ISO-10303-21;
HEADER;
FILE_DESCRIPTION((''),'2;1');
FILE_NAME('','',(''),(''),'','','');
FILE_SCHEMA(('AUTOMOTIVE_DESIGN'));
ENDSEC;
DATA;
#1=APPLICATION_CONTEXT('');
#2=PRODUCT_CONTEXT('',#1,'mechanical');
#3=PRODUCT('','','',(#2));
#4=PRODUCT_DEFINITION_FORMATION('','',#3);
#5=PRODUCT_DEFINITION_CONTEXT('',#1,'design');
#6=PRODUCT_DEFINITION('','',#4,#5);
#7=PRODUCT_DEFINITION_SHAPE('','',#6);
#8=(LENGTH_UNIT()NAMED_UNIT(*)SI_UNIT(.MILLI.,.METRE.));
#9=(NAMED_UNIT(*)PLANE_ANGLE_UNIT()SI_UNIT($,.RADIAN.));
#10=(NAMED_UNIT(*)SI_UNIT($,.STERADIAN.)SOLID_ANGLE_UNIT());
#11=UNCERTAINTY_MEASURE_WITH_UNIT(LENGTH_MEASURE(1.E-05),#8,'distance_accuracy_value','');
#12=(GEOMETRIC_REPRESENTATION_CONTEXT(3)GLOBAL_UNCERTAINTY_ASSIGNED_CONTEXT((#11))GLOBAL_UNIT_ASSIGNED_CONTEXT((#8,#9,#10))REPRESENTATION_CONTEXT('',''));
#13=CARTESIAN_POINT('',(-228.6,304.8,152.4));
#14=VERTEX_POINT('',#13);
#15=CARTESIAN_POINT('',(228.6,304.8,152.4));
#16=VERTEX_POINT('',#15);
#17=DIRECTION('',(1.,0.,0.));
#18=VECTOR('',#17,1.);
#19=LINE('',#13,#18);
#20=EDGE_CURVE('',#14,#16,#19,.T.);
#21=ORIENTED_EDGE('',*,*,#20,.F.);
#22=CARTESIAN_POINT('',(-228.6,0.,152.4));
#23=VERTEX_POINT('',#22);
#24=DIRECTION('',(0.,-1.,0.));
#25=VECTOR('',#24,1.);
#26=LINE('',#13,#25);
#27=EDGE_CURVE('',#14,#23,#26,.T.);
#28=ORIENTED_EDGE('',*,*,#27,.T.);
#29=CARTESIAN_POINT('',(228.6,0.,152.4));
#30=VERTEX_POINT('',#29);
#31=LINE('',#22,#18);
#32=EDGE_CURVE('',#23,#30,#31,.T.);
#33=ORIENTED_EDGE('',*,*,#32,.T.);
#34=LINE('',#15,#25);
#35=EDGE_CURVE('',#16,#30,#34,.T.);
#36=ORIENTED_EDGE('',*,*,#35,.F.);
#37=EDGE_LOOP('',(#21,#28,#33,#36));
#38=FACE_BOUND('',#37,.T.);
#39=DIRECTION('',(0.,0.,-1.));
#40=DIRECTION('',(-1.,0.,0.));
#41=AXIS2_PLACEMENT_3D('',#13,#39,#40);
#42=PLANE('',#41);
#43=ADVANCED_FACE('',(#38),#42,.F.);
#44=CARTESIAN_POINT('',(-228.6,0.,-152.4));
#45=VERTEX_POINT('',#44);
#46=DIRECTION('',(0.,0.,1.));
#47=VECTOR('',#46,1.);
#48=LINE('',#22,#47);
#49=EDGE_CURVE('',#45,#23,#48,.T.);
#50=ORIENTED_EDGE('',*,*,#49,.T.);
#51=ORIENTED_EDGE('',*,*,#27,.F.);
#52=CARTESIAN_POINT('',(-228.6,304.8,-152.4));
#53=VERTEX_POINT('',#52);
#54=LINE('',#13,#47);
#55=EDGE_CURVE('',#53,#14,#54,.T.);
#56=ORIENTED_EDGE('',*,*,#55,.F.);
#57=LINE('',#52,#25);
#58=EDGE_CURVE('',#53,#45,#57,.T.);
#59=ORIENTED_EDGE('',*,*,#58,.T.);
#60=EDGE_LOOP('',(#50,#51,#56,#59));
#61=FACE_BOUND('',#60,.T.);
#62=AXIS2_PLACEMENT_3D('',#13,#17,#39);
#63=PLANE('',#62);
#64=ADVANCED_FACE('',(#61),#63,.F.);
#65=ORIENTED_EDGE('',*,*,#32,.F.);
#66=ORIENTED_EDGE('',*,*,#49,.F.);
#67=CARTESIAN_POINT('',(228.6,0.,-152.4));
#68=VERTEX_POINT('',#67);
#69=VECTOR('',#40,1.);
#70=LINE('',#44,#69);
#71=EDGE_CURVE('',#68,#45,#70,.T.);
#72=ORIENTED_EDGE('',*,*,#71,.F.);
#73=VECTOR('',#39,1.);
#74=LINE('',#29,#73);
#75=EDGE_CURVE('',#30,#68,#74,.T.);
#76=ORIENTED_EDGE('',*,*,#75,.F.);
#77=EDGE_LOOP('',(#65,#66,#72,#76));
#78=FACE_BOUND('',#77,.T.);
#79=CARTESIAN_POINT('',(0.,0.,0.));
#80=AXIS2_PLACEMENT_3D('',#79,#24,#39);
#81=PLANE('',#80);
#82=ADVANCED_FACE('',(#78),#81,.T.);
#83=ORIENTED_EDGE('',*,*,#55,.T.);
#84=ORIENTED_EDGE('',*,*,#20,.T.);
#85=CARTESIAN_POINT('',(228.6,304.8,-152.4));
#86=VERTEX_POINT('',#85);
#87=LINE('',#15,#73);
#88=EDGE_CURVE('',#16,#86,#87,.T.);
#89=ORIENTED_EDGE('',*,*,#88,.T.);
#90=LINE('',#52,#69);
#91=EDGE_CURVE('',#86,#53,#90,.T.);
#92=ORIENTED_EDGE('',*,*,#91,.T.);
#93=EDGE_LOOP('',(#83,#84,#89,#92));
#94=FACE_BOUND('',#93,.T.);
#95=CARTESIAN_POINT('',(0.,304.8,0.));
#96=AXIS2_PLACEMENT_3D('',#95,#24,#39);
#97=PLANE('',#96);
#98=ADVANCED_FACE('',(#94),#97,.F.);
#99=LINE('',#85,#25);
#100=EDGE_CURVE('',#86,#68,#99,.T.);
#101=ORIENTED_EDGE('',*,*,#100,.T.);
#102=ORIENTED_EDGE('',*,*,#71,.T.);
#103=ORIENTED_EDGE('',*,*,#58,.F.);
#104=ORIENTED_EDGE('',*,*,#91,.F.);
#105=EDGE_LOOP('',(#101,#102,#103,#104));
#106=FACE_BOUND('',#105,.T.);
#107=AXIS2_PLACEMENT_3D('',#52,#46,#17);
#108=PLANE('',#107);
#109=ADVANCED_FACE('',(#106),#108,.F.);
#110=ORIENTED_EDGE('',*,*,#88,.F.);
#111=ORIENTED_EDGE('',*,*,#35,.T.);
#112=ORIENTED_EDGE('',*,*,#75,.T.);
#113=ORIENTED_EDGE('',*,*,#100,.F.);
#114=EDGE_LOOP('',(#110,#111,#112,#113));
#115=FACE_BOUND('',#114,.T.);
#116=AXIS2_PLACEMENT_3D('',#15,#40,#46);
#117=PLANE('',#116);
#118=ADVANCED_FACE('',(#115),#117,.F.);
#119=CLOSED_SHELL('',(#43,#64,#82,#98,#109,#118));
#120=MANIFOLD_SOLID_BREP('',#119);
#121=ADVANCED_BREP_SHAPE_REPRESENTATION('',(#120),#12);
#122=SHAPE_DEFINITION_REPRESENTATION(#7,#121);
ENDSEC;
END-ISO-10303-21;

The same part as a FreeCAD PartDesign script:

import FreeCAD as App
import Part
import Sketcher
from FreeCAD import Vector
Q = App.Units.Quantity


def add_polygon(sketch, points):
    """Adds a closed chain of lines whose ends are joined by coincident constraints."""
    first, n = sketch.GeometryCount, len(points)
    for a, b in zip(points, points[1:] + points[:1]):
        sketch.addGeometry(Part.LineSegment(App.Vector(*a, 0), App.Vector(*b, 0)), False)
    for i in range(n):
        sketch.addConstraint(Sketcher.Constraint("Coincident", first + i, 2, first + (i + 1) % n, 1))

doc = App.newDocument("Part")
body = doc.addObject("PartDesign::Body", "Body")

sketch1 = doc.addObject("Sketcher::SketchObject", "Sketch")
body.addObject(sketch1)
sketch1.AttachmentSupport = (doc.XZ_Plane, [""])
sketch1.MapMode = "FlatFace"
add_polygon(sketch1, [(-228.6, -152.4), (-228.6, 152.4), (228.6, 152.4), (228.6, -152.4)])
sketch1.addConstraint([
    Sketcher.Constraint("Vertical", 0),
    Sketcher.Constraint("Horizontal", 1),
    Sketcher.Constraint("Vertical", 2),
    Sketcher.Constraint("Horizontal", 3),
    Sketcher.Constraint("Symmetric", 0, 2, 2, 2, -1, 1),
    Sketcher.Constraint("DistanceX", 1, 1, 1, 2, Q("18 in")),
    Sketcher.Constraint("DistanceY", 0, 1, 0, 2, Q("12 in")),
])
pad1 = doc.addObject("PartDesign::Pad", "Pad")
body.addObject(pad1)
pad1.Profile = sketch1
pad1.Length = Q("12 in")
pad1.Reversed = True

doc.recompute()
